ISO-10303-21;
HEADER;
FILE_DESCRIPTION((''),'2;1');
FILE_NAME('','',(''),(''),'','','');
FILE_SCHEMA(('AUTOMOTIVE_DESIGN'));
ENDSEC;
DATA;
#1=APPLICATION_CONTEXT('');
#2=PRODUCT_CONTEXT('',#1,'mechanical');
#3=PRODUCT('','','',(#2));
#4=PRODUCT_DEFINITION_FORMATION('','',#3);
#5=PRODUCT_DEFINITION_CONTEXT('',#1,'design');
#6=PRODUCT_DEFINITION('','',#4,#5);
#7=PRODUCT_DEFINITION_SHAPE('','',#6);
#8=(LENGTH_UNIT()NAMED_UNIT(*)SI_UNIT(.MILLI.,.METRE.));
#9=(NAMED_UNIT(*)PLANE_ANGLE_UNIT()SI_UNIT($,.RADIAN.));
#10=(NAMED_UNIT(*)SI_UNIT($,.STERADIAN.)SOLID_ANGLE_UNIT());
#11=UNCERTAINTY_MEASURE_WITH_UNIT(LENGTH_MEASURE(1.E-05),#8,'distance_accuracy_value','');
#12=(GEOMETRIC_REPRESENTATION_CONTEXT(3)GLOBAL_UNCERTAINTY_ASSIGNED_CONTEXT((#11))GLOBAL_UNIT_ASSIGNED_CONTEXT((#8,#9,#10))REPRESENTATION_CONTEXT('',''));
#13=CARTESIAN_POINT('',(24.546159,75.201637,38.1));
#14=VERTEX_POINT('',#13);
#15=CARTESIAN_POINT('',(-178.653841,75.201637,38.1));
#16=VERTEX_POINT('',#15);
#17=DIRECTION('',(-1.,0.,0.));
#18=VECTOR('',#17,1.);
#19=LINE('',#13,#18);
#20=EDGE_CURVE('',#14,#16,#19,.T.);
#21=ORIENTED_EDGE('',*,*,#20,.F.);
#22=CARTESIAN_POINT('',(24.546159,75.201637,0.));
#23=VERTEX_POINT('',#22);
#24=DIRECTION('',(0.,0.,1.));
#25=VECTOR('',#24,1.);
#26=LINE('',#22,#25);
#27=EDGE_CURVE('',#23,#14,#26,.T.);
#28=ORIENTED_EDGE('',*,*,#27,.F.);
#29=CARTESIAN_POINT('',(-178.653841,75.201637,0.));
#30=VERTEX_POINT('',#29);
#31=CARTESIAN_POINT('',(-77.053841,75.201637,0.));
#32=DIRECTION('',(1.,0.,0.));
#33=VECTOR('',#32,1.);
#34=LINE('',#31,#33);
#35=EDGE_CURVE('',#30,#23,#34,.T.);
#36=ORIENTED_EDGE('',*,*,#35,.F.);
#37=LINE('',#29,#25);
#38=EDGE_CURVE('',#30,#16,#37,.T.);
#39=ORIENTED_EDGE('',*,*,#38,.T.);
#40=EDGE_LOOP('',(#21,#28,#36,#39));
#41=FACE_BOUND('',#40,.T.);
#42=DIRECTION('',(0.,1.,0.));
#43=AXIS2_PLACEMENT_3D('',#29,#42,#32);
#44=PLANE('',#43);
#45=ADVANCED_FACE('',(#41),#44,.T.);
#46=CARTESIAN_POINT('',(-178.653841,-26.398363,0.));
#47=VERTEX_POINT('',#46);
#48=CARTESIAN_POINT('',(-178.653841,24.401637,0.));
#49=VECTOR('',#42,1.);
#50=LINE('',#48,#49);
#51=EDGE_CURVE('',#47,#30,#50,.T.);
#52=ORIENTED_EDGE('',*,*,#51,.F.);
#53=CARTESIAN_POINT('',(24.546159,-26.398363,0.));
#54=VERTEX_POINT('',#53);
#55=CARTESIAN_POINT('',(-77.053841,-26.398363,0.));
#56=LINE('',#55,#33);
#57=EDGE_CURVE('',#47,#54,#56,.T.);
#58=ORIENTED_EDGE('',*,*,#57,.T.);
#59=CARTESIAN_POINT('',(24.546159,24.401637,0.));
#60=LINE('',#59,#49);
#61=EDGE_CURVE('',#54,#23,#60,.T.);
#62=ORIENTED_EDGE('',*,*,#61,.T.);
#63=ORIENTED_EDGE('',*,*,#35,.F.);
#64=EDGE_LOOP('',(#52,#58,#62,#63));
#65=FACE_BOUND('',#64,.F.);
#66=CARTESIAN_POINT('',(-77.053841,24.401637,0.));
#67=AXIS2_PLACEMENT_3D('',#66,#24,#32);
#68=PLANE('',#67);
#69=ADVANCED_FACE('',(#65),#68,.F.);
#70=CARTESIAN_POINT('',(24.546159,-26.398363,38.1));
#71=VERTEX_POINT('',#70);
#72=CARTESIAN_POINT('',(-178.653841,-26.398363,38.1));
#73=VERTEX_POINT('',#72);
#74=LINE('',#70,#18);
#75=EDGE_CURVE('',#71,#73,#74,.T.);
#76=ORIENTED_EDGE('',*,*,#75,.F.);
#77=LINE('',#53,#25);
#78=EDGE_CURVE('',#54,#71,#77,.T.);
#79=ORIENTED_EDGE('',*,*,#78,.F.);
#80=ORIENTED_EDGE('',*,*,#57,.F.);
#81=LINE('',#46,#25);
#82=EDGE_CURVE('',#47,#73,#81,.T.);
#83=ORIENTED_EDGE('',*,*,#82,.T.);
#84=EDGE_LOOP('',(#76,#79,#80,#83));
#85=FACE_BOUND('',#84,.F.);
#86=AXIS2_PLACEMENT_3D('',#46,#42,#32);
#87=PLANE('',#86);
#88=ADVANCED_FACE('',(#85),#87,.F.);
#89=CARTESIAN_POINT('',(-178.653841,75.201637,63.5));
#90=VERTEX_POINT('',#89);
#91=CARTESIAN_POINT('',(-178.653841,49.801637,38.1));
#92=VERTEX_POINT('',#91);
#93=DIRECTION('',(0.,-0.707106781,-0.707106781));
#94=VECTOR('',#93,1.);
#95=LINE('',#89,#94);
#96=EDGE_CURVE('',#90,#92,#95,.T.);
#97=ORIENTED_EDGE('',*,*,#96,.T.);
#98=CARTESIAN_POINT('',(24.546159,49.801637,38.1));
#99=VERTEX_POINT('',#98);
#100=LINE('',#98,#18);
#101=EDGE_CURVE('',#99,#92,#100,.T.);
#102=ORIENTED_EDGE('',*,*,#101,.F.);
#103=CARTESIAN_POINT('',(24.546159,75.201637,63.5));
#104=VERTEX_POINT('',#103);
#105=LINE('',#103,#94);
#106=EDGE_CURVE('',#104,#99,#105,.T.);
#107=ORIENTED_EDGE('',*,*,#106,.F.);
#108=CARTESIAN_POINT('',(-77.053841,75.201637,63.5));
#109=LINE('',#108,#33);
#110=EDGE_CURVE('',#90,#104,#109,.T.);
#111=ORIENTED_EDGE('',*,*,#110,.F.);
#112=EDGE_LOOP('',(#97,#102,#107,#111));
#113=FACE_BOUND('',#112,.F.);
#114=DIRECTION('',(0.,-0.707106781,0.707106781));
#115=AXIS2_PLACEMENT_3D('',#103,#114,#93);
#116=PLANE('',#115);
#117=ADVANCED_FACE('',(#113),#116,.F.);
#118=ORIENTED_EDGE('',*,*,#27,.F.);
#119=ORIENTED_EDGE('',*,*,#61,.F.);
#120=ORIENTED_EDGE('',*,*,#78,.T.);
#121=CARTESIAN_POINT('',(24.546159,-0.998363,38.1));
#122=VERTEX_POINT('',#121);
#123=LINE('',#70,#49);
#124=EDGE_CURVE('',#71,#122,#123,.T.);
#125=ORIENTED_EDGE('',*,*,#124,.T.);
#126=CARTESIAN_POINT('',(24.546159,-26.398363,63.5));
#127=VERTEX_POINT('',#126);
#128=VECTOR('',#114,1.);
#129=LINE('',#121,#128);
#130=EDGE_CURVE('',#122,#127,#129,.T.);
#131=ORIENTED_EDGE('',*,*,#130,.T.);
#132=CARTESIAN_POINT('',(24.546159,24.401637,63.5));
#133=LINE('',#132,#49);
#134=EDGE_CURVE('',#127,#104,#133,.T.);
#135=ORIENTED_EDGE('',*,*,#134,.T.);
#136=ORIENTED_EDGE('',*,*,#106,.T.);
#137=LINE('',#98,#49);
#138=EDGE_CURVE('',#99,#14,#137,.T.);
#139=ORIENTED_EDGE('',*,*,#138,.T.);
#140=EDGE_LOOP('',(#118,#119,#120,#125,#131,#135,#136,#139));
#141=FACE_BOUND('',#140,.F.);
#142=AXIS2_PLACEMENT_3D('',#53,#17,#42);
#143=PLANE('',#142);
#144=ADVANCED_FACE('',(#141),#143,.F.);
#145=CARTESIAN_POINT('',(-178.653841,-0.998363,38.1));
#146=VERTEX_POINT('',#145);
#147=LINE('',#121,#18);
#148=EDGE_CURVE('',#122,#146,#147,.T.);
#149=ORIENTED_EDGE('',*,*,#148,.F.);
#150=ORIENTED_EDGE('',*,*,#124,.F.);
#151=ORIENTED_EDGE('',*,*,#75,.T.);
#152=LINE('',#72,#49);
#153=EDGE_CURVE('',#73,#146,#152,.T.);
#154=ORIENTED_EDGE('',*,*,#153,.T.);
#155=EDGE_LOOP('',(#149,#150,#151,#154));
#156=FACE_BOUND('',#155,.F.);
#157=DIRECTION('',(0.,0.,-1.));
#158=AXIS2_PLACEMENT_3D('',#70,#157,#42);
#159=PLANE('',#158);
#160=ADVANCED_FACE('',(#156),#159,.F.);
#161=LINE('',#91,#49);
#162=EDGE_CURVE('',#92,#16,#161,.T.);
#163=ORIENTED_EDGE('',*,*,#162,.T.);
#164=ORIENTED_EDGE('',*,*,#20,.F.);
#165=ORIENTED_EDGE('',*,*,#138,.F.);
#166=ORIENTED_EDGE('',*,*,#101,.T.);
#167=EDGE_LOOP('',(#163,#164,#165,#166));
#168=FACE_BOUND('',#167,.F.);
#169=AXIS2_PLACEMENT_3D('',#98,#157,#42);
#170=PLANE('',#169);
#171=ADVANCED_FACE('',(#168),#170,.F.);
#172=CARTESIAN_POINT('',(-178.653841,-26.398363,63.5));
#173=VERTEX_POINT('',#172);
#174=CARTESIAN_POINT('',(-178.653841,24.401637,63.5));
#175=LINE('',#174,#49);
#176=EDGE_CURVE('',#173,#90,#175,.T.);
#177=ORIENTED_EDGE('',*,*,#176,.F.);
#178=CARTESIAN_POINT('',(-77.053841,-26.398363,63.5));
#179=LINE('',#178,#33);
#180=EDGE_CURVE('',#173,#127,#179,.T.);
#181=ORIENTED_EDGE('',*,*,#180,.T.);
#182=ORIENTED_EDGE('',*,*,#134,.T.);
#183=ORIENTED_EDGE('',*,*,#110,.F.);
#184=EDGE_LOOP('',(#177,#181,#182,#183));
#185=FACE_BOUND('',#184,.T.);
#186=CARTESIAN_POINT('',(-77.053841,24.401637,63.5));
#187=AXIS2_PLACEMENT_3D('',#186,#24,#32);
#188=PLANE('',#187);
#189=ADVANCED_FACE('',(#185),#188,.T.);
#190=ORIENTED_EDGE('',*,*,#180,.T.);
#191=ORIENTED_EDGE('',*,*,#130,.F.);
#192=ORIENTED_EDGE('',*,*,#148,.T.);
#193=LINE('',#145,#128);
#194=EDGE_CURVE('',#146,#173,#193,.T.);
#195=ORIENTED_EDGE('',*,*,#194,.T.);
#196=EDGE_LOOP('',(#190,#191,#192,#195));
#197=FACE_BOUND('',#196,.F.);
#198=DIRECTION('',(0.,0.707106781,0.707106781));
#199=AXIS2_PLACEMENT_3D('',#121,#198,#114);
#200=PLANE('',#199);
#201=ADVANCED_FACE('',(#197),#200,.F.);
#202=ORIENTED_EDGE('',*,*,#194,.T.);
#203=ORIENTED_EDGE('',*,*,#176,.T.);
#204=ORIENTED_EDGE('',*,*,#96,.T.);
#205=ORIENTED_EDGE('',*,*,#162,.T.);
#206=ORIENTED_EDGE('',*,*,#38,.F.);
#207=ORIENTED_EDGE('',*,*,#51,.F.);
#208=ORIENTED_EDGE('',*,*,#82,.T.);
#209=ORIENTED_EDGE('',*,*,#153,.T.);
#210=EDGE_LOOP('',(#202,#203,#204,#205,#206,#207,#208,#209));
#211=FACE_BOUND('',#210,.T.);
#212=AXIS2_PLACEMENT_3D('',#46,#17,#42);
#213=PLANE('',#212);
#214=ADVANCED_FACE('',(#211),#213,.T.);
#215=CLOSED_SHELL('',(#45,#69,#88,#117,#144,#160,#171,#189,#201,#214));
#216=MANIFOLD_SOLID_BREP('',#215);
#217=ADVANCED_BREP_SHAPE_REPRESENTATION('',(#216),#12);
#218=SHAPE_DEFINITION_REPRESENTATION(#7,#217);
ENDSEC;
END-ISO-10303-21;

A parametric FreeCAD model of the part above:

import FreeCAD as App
import Part
import Sketcher
from FreeCAD import Vector
Q = App.Units.Quantity

doc = App.newDocument("Part")
body = doc.addObject("PartDesign::Body", "Body")

sketch1 = doc.addObject("Sketcher::SketchObject", "Sketch")
body.addObject(sketch1)
sketch1.AttachmentSupport = (doc.XY_Plane, [""])
sketch1.MapMode = "FlatFace"
sketch1.addGeometry([
    Part.LineSegment(Vector(-179, 75, 0), Vector(-179, -26, 0)),
    Part.LineSegment(Vector(-179, -26, 0), Vector(25, -26, 0)),
    Part.LineSegment(Vector(25, -26, 0), Vector(25, 75, 0)),
    Part.LineSegment(Vector(25, 75, 0), Vector(-179, 75, 0)),
], False)
sketch1.addConstraint([
    Sketcher.Constraint("Coincident", 0, 2, 1, 1),
    Sketcher.Constraint("Coincident", 1, 2, 2, 1),
    Sketcher.Constraint("Coincident", 2, 2, 3, 1),
    Sketcher.Constraint("Coincident", 3, 2, 0, 1),
    Sketcher.Constraint("Vertical", 0),
    Sketcher.Constraint("Horizontal", 1),
    Sketcher.Constraint("Vertical", 2),
    Sketcher.Constraint("Horizontal", 3),
    Sketcher.Constraint("DistanceX", 1, 1, 1, 2, Q("8 in")),
    Sketcher.Constraint("DistanceY", 0, 2, 0, 1, Q("4 in")),
    Sketcher.Constraint("DistanceX", 0, 2, -1, 1, 178.653841),
    Sketcher.Constraint("DistanceY", 0, 2, -1, 1, 26.398363),
])
pad1 = doc.addObject("PartDesign::Pad", "Pad")
body.addObject(pad1)
pad1.Profile = sketch1
pad1.Length = Q("2.5 in")

sketch2 = doc.addObject("Sketcher::SketchObject", "Sketch001")
body.addObject(sketch2)
sketch2.AttachmentSupport = (doc.YZ_Plane, [""])
sketch2.MapMode = "FlatFace"
sketch2.AttachmentOffset = App.Placement(Vector(0, 0, 24.546159), App.Rotation())
sketch2.addGeometry([
    Part.LineSegment(Vector(-1, 38, 0), Vector(-26, 64, 0)),
    Part.LineSegment(Vector(-26, 64, 0), Vector(-26, 38, 0)),
    Part.LineSegment(Vector(-26, 38, 0), Vector(-1, 38, 0)),
], False)
sketch2.addConstraint([
    Sketcher.Constraint("Coincident", 0, 2, 1, 1),
    Sketcher.Constraint("Coincident", 1, 2, 2, 1),
    Sketcher.Constraint("Coincident", 2, 2, 0, 1),
    Sketcher.Constraint("Vertical", 1),
    Sketcher.Constraint("Horizontal", 2),
    Sketcher.Constraint("Equal", 2, 1),
    Sketcher.Constraint("DistanceX", 2, 1, 2, 2, Q("1 in")),
    Sketcher.Constraint("DistanceY", -1, 1, 0, 2, Q("2.5 in")),
    Sketcher.Constraint("DistanceX", 0, 2, -1, 1, 26.398363),
])
pocket1 = doc.addObject("PartDesign::Pocket", "Pocket")
body.addObject(pocket1)
pocket1.Profile = sketch2
pocket1.Length = Q("8 in")

sketch3 = doc.addObject("Sketcher::SketchObject", "Sketch002")
body.addObject(sketch3)
sketch3.AttachmentSupport = (doc.YZ_Plane, [""])
sketch3.MapMode = "FlatFace"
sketch3.AttachmentOffset = App.Placement(Vector(0, 0, 24.546159), App.Rotation())
sketch3.addGeometry([
    Part.LineSegment(Vector(75, 38, 0), Vector(75, 64, 0)),
    Part.LineSegment(Vector(75, 64, 0), Vector(50, 38, 0)),
    Part.LineSegment(Vector(50, 38, 0), Vector(75, 38, 0)),
], False)
sketch3.addConstraint([
    Sketcher.Constraint("Coincident", 0, 2, 1, 1),
    Sketcher.Constraint("Coincident", 1, 2, 2, 1),
    Sketcher.Constraint("Coincident", 2, 2, 0, 1),
    Sketcher.Constraint("Vertical", 0),
    Sketcher.Constraint("Horizontal", 2),
    Sketcher.Constraint("Equal", 2, 0),
    Sketcher.Constraint("DistanceX", 2, 1, 2, 2, Q("1 in")),
    Sketcher.Constraint("DistanceY", -1, 1, 0, 2, Q("2.5 in")),
    Sketcher.Constraint("DistanceX", -1, 1, 0, 2, 75.201637),
])
pocket2 = doc.addObject("PartDesign::Pocket", "Pocket001")
body.addObject(pocket2)
pocket2.Profile = sketch3
pocket2.Length = Q("8 in")

doc.recompute()
